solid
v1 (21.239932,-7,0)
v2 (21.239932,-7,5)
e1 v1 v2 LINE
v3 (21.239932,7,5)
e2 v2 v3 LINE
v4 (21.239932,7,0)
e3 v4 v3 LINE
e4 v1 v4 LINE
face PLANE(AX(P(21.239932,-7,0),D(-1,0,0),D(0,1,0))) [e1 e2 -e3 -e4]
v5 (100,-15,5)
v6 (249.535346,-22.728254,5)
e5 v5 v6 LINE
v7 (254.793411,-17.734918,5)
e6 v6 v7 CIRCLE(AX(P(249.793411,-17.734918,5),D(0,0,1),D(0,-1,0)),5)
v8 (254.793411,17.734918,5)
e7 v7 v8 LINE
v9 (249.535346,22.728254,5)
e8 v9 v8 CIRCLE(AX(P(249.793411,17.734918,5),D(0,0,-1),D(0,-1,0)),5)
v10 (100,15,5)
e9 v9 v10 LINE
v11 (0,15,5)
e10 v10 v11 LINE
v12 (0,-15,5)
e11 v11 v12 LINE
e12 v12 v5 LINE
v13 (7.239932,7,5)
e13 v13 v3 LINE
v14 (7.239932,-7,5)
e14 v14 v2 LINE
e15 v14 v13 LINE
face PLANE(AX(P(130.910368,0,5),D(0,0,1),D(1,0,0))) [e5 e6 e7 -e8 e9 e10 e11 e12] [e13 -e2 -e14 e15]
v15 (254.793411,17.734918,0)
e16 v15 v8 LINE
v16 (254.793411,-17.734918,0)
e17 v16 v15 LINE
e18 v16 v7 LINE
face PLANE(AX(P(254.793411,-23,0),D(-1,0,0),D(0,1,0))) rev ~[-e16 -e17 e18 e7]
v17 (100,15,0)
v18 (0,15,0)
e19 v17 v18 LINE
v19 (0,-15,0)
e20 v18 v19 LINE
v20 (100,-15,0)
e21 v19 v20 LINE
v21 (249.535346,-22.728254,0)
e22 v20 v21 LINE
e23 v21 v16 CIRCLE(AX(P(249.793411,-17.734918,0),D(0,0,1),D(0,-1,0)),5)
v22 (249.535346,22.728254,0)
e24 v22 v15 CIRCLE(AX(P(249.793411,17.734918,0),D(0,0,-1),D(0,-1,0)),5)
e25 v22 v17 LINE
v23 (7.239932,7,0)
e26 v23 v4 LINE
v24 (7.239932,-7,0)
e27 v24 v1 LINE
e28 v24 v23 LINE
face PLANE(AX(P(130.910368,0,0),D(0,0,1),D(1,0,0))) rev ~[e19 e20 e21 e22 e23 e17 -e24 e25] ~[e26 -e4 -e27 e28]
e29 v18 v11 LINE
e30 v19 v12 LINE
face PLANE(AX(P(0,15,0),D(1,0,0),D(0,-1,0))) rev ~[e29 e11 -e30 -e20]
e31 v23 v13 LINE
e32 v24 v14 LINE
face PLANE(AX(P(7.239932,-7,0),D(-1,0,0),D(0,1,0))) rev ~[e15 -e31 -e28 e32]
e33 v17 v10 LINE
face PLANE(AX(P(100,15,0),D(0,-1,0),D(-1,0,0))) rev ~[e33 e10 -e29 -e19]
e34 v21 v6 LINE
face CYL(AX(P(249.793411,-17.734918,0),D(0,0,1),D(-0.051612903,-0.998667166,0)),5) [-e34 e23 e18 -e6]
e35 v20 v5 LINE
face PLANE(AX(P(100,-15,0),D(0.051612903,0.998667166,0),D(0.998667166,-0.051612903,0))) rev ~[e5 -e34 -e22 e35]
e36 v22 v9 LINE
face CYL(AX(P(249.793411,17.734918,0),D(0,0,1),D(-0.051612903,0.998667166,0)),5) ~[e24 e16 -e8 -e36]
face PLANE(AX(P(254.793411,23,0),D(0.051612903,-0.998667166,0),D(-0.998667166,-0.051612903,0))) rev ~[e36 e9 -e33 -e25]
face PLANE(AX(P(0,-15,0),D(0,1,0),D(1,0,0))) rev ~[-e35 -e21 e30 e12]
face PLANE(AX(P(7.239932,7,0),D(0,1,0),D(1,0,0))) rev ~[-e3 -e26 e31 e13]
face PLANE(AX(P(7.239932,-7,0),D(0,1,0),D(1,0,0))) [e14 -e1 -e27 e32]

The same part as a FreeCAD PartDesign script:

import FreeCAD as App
import Part
import Sketcher
from FreeCAD import Vector


def edges_at(feature, points):
    """Names of the edges that pass closest to the given points."""
    edges = feature.Shape.Edges
    near = lambda p: min(range(len(edges)), key=lambda i: edges[i].distToShape(Part.Vertex(*p))[0])
    return sorted({f"Edge{near(p) + 1}" for p in points})

doc = App.newDocument("Part")
body = doc.addObject("PartDesign::Body", "Body")

sketch1 = body.newObject("Sketcher::SketchObject", "Sketch")
sketch1.AttachmentSupport = (doc.getObject("XY_Plane"), [""])
sketch1.MapMode = "FlatFace"
sketch1.addGeometry(Part.LineSegment(Vector(0, 15, 0), Vector(0, -15, 0)), False)
sketch1.addGeometry(Part.LineSegment(Vector(0, -15, 0), Vector(100, -15, 0)), False)
sketch1.addGeometry(Part.LineSegment(Vector(100, -15, 0), Vector(255, -23, 0)), False)
sketch1.addGeometry(Part.LineSegment(Vector(255, -23, 0), Vector(255, 23, 0)), False)
sketch1.addGeometry(Part.LineSegment(Vector(255, 23, 0), Vector(100, 15, 0)), False)
sketch1.addGeometry(Part.LineSegment(Vector(100, 15, 0), Vector(0, 15, 0)), False)
sketch1.addConstraint(Sketcher.Constraint("Coincident", 0, 2, 1, 1))
sketch1.addConstraint(Sketcher.Constraint("Coincident", 1, 2, 2, 1))
sketch1.addConstraint(Sketcher.Constraint("Coincident", 2, 2, 3, 1))
sketch1.addConstraint(Sketcher.Constraint("Coincident", 3, 2, 4, 1))
sketch1.addConstraint(Sketcher.Constraint("Coincident", 4, 2, 5, 1))
sketch1.addConstraint(Sketcher.Constraint("Coincident", 5, 2, 0, 1))
sketch1.addConstraint(Sketcher.Constraint("Vertical", 0))
sketch1.addConstraint(Sketcher.Constraint("Horizontal", 1))
sketch1.addConstraint(Sketcher.Constraint("Vertical", 3))
sketch1.addConstraint(Sketcher.Constraint("Horizontal", 5))
sketch1.addConstraint(Sketcher.Constraint("Symmetric", 0, 2, 5, 2, -1, 1))
sketch1.addConstraint(Sketcher.Constraint("Vertical", 1, 2, 4, 2))
sketch1.addConstraint(Sketcher.Constraint("Equal", 2, 4))
sketch1.addConstraint(Sketcher.Constraint("DistanceX", 1, 1, 1, 2, 100.0))
sketch1.addConstraint(Sketcher.Constraint("DistanceY", 0, 2, 0, 1, 30.0))
sketch1.addConstraint(Sketcher.Constraint("DistanceY", 3, 1, 3, 2, 46.0))
sketch1.addConstraint(Sketcher.Constraint("Distance", 2, 155.0))
pad1 = body.newObject("PartDesign::Pad", "Pad")
pad1.Profile = sketch1
pad1.Length = 5

sketch2 = body.newObject("Sketcher::SketchObject", "Sketch001")
sketch2.AttachmentSupport = (doc.getObject("XY_Plane"), [""])
sketch2.MapMode = "FlatFace"
sketch2.addGeometry(Part.LineSegment(Vector(7, 7, 0), Vector(7, -7, 0)), False)
sketch2.addGeometry(Part.LineSegment(Vector(7, -7, 0), Vector(21, -7, 0)), False)
sketch2.addGeometry(Part.LineSegment(Vector(21, -7, 0), Vector(21, 7, 0)), False)
sketch2.addGeometry(Part.LineSegment(Vector(21, 7, 0), Vector(7, 7, 0)), False)
sketch2.addConstraint(Sketcher.Constraint("Coincident", 0, 2, 1, 1))
sketch2.addConstraint(Sketcher.Constraint("Coincident", 1, 2, 2, 1))
sketch2.addConstraint(Sketcher.Constraint("Coincident", 2, 2, 3, 1))
sketch2.addConstraint(Sketcher.Constraint("Coincident", 3, 2, 0, 1))
sketch2.addConstraint(Sketcher.Constraint("Vertical", 0))
sketch2.addConstraint(Sketcher.Constraint("Horizontal", 1))
sketch2.addConstraint(Sketcher.Constraint("Vertical", 2))
sketch2.addConstraint(Sketcher.Constraint("Horizontal", 3))
sketch2.addConstraint(Sketcher.Constraint("Equal", 3, 0))
sketch2.addConstraint(Sketcher.Constraint("DistanceX", 1, 1, 1, 2, 14.0))
sketch2.addConstraint(Sketcher.Constraint("DistanceY", 0, 2, -1, 1, 7.0))
sketch2.addConstraint(Sketcher.Constraint("DistanceX", -1, 1, 0, 2, 7.239932))
pocket1 = body.newObject("PartDesign::Pocket", "Pocket")
pocket1.Profile = sketch2
pocket1.Type = "ThroughAll"
pocket1.Reversed = True
doc.recompute()

fillet = body.newObject("PartDesign::Fillet", "Fillet")
fillet.Base = (pocket1, edges_at(pocket1, [(254.793, -23, 2.5), (254.793, 23, 2.5)]))
fillet.Radius = 5

doc.recompute()
